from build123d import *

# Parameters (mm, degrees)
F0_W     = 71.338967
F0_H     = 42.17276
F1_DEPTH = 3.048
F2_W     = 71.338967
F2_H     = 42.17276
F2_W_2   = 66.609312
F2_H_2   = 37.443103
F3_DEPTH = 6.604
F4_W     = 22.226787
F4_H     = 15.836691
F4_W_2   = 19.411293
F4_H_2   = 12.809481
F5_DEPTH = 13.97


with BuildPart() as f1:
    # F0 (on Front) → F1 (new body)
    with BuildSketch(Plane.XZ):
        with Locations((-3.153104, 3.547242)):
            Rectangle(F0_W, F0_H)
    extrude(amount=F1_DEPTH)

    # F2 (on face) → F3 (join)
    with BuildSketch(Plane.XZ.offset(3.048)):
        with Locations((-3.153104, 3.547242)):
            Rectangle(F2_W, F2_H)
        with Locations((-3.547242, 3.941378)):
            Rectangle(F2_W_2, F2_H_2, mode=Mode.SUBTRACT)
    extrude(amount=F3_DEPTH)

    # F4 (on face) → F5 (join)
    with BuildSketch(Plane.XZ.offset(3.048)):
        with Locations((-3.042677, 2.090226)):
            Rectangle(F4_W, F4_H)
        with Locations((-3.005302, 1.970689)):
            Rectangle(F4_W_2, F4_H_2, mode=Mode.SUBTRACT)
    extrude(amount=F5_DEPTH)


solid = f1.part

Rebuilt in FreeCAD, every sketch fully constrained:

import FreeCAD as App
import Part
import Sketcher

V = App.Vector
Q = App.Units.Quantity

doc = App.newDocument("Part")
body = doc.addObject("PartDesign::Body", "Body")

# Sketch on XZ plane
sketch1 = doc.addObject("Sketcher::SketchObject", "Sketch")
body.addObject(sketch1)
sketch1.AttachmentSupport = (doc.XZ_Plane, [""])
sketch1.MapMode = "FlatFace"
sketch1.addGeometry(Part.LineSegment(V(-38.822587, 24.633622, 0), V(-38.822587, -17.539138, 0)), False)
sketch1.addGeometry(Part.LineSegment(V(-38.822587, -17.539138, 0), V(32.516379, -17.539138, 0)), False)
sketch1.addGeometry(Part.LineSegment(V(32.516379, -17.539138, 0), V(32.516379, 24.633622, 0)), False)
sketch1.addGeometry(Part.LineSegment(V(32.516379, 24.633622, 0), V(-38.822587, 24.633622, 0)), False)
sketch1.addConstraint(Sketcher.Constraint("Coincident", 0, 2, 1, 1))
sketch1.addConstraint(Sketcher.Constraint("Coincident", 1, 2, 2, 1))
sketch1.addConstraint(Sketcher.Constraint("Coincident", 2, 2, 3, 1))
sketch1.addConstraint(Sketcher.Constraint("Coincident", 3, 2, 0, 1))
sketch1.addConstraint(Sketcher.Constraint("Vertical", 0))
sketch1.addConstraint(Sketcher.Constraint("Horizontal", 1))
sketch1.addConstraint(Sketcher.Constraint("Vertical", 2))
sketch1.addConstraint(Sketcher.Constraint("Horizontal", 3))
sketch1.addConstraint(Sketcher.Constraint("DistanceY", 0, 2, 0, 1, 42.17276))
sketch1.addConstraint(Sketcher.Constraint("DistanceX", 1, 1, 1, 2, 71.338967))
sketch1.addConstraint(Sketcher.Constraint("DistanceY", 0, 2, -1, 1, 17.539138))
sketch1.addConstraint(Sketcher.Constraint("DistanceX", -1, 1, 1, 2, 32.516379))
pad1 = doc.addObject("PartDesign::Pad", "Pad")
body.addObject(pad1)
pad1.Profile = sketch1
pad1.Length = Q("0.12 in")

# Sketch on XZ plane
sketch2 = doc.addObject("Sketcher::SketchObject", "Sketch001")
body.addObject(sketch2)
sketch2.AttachmentSupport = (doc.XZ_Plane, [""])
sketch2.MapMode = "FlatFace"
sketch2.AttachmentOffset = App.Placement(V(0, 0, 0.12 * 25.4), App.Rotation())
sketch2.addGeometry(Part.LineSegment(V(-38.822587, 24.633622, 0), V(-38.822587, -17.539138, 0)), False)
sketch2.addGeometry(Part.LineSegment(V(-38.822587, -17.539138, 0), V(32.516379, -17.539138, 0)), False)
sketch2.addGeometry(Part.LineSegment(V(32.516379, -17.539138, 0), V(32.516379, 24.633622, 0)), False)
sketch2.addGeometry(Part.LineSegment(V(32.516379, 24.633622, 0), V(-38.822587, 24.633622, 0)), False)
sketch2.addGeometry(Part.LineSegment(V(29.757414, -14.780174, 0), V(-36.851898, -14.780174, 0)), False)
sketch2.addGeometry(Part.LineSegment(V(-36.851898, -14.780174, 0), V(-36.851898, 22.66293, 0)), False)
sketch2.addGeometry(Part.LineSegment(V(-36.851898, 22.66293, 0), V(29.757414, 22.66293, 0)), False)
sketch2.addGeometry(Part.LineSegment(V(29.757414, 22.66293, 0), V(29.757414, -14.780174, 0)), False)
sketch2.addConstraint(Sketcher.Constraint("Coincident", 0, 2, 1, 1))
sketch2.addConstraint(Sketcher.Constraint("Coincident", 1, 2, 2, 1))
sketch2.addConstraint(Sketcher.Constraint("Coincident", 2, 2, 3, 1))
sketch2.addConstraint(Sketcher.Constraint("Coincident", 3, 2, 0, 1))
sketch2.addConstraint(Sketcher.Constraint("Coincident", 4, 2, 5, 1))
sketch2.addConstraint(Sketcher.Constraint("Coincident", 5, 2, 6, 1))
sketch2.addConstraint(Sketcher.Constraint("Coincident", 6, 2, 7, 1))
sketch2.addConstraint(Sketcher.Constraint("Coincident", 7, 2, 4, 1))
sketch2.addConstraint(Sketcher.Constraint("Vertical", 0))
sketch2.addConstraint(Sketcher.Constraint("Horizontal", 1))
sketch2.addConstraint(Sketcher.Constraint("Vertical", 2))
sketch2.addConstraint(Sketcher.Constraint("Horizontal", 3))
sketch2.addConstraint(Sketcher.Constraint("Horizontal", 4))
sketch2.addConstraint(Sketcher.Constraint("Vertical", 5))
sketch2.addConstraint(Sketcher.Constraint("Horizontal", 6))
sketch2.addConstraint(Sketcher.Constraint("Vertical", 7))
sketch2.addConstraint(Sketcher.Constraint("DistanceX", 3, 2, 6, 2, Q("2.7000001 in")))
sketch2.addConstraint(Sketcher.Constraint("DistanceY", 0, 2, 0, 1, 42.17276))
sketch2.addConstraint(Sketcher.Constraint("DistanceX", 1, 1, 1, 2, 71.338967))
sketch2.addConstraint(Sketcher.Constraint("DistanceX", 4, 2, 4, 1, 66.609312))
sketch2.addConstraint(Sketcher.Constraint("DistanceY", 5, 1, 5, 2, 37.443103))
sketch2.addConstraint(Sketcher.Constraint("DistanceY", 0, 2, -1, 1, 17.539138))
sketch2.addConstraint(Sketcher.Constraint("DistanceX", -1, 1, 1, 2, 32.516379))
sketch2.addConstraint(Sketcher.Constraint("DistanceY", -1, 1, 5, 2, 22.66293))
pad2 = doc.addObject("PartDesign::Pad", "Pad001")
body.addObject(pad2)
pad2.Profile = sketch2
pad2.Length = Q("0.26 in")

# Sketch on XZ plane
sketch3 = doc.addObject("Sketcher::SketchObject", "Sketch002")
body.addObject(sketch3)
sketch3.AttachmentSupport = (doc.XZ_Plane, [""])
sketch3.MapMode = "FlatFace"
sketch3.AttachmentOffset = App.Placement(V(0, 0, 0.12 * 25.4), App.Rotation())
sketch3.addGeometry(Part.LineSegment(V(-14.156071, 10.008572, 0), V(-14.156071, -5.828119, 0)), False)
sketch3.addGeometry(Part.LineSegment(V(-14.156071, -5.828119, 0), V(8.070716, -5.828119, 0)), False)
sketch3.addGeometry(Part.LineSegment(V(8.070716, -5.828119, 0), V(8.070716, 10.008572, 0)), False)
sketch3.addGeometry(Part.LineSegment(V(8.070716, 10.008572, 0), V(-14.156071, 10.008572, 0)), False)
sketch3.addGeometry(Part.LineSegment(V(6.700344, -4.434051, 0), V(-12.710949, -4.434051, 0)), False)
sketch3.addGeometry(Part.LineSegment(V(-12.710949, -4.434051, 0), V(-12.710949, 8.375429, 0)), False)
sketch3.addGeometry(Part.LineSegment(V(-12.710949, 8.375429, 0), V(6.700344, 8.375429, 0)), False)
sketch3.addGeometry(Part.LineSegment(V(6.700344, 8.375429, 0), V(6.700344, -4.434051, 0)), False)
sketch3.addConstraint(Sketcher.Constraint("Coincident", 0, 2, 1, 1))
sketch3.addConstraint(Sketcher.Constraint("Coincident", 1, 2, 2, 1))
sketch3.addConstraint(Sketcher.Constraint("Coincident", 2, 2, 3, 1))
sketch3.addConstraint(Sketcher.Constraint("Coincident", 3, 2, 0, 1))
sketch3.addConstraint(Sketcher.Constraint("Coincident", 4, 2, 5, 1))
sketch3.addConstraint(Sketcher.Constraint("Coincident", 5, 2, 6, 1))
sketch3.addConstraint(Sketcher.Constraint("Coincident", 6, 2, 7, 1))
sketch3.addConstraint(Sketcher.Constraint("Coincident", 7, 2, 4, 1))
sketch3.addConstraint(Sketcher.Constraint("Vertical", 0))
sketch3.addConstraint(Sketcher.Constraint("Horizontal", 1))
sketch3.addConstraint(Sketcher.Constraint("Vertical", 2))
sketch3.addConstraint(Sketcher.Constraint("Horizontal", 3))
sketch3.addConstraint(Sketcher.Constraint("Horizontal", 4))
sketch3.addConstraint(Sketcher.Constraint("Vertical", 5))
sketch3.addConstraint(Sketcher.Constraint("Horizontal", 6))
sketch3.addConstraint(Sketcher.Constraint("Vertical", 7))
sketch3.addConstraint(Sketcher.Constraint("DistanceY", 0, 2, 0, 1, 15.836691))
sketch3.addConstraint(Sketcher.Constraint("DistanceY", 5, 1, 5, 2, 12.809481))
sketch3.addConstraint(Sketcher.Constraint("DistanceX", 1, 1, 1, 2, 22.226787))
sketch3.addConstraint(Sketcher.Constraint("DistanceX", 4, 2, 4, 1, 19.411293))
sketch3.addConstraint(Sketcher.Constraint("DistanceX", 0, 2, -1, 1, 14.156071))
sketch3.addConstraint(Sketcher.Constraint("DistanceY", 0, 2, -1, 1, 5.828119))
sketch3.addConstraint(Sketcher.Constraint("DistanceX", 4, 2, -1, 1, 12.710949))
sketch3.addConstraint(Sketcher.Constraint("DistanceY", 4, 2, -1, 1, 4.434051))
pad3 = doc.addObject("PartDesign::Pad", "Pad002")
body.addObject(pad3)
pad3.Profile = sketch3
pad3.Length = Q("0.55 in")

doc.recompute()
